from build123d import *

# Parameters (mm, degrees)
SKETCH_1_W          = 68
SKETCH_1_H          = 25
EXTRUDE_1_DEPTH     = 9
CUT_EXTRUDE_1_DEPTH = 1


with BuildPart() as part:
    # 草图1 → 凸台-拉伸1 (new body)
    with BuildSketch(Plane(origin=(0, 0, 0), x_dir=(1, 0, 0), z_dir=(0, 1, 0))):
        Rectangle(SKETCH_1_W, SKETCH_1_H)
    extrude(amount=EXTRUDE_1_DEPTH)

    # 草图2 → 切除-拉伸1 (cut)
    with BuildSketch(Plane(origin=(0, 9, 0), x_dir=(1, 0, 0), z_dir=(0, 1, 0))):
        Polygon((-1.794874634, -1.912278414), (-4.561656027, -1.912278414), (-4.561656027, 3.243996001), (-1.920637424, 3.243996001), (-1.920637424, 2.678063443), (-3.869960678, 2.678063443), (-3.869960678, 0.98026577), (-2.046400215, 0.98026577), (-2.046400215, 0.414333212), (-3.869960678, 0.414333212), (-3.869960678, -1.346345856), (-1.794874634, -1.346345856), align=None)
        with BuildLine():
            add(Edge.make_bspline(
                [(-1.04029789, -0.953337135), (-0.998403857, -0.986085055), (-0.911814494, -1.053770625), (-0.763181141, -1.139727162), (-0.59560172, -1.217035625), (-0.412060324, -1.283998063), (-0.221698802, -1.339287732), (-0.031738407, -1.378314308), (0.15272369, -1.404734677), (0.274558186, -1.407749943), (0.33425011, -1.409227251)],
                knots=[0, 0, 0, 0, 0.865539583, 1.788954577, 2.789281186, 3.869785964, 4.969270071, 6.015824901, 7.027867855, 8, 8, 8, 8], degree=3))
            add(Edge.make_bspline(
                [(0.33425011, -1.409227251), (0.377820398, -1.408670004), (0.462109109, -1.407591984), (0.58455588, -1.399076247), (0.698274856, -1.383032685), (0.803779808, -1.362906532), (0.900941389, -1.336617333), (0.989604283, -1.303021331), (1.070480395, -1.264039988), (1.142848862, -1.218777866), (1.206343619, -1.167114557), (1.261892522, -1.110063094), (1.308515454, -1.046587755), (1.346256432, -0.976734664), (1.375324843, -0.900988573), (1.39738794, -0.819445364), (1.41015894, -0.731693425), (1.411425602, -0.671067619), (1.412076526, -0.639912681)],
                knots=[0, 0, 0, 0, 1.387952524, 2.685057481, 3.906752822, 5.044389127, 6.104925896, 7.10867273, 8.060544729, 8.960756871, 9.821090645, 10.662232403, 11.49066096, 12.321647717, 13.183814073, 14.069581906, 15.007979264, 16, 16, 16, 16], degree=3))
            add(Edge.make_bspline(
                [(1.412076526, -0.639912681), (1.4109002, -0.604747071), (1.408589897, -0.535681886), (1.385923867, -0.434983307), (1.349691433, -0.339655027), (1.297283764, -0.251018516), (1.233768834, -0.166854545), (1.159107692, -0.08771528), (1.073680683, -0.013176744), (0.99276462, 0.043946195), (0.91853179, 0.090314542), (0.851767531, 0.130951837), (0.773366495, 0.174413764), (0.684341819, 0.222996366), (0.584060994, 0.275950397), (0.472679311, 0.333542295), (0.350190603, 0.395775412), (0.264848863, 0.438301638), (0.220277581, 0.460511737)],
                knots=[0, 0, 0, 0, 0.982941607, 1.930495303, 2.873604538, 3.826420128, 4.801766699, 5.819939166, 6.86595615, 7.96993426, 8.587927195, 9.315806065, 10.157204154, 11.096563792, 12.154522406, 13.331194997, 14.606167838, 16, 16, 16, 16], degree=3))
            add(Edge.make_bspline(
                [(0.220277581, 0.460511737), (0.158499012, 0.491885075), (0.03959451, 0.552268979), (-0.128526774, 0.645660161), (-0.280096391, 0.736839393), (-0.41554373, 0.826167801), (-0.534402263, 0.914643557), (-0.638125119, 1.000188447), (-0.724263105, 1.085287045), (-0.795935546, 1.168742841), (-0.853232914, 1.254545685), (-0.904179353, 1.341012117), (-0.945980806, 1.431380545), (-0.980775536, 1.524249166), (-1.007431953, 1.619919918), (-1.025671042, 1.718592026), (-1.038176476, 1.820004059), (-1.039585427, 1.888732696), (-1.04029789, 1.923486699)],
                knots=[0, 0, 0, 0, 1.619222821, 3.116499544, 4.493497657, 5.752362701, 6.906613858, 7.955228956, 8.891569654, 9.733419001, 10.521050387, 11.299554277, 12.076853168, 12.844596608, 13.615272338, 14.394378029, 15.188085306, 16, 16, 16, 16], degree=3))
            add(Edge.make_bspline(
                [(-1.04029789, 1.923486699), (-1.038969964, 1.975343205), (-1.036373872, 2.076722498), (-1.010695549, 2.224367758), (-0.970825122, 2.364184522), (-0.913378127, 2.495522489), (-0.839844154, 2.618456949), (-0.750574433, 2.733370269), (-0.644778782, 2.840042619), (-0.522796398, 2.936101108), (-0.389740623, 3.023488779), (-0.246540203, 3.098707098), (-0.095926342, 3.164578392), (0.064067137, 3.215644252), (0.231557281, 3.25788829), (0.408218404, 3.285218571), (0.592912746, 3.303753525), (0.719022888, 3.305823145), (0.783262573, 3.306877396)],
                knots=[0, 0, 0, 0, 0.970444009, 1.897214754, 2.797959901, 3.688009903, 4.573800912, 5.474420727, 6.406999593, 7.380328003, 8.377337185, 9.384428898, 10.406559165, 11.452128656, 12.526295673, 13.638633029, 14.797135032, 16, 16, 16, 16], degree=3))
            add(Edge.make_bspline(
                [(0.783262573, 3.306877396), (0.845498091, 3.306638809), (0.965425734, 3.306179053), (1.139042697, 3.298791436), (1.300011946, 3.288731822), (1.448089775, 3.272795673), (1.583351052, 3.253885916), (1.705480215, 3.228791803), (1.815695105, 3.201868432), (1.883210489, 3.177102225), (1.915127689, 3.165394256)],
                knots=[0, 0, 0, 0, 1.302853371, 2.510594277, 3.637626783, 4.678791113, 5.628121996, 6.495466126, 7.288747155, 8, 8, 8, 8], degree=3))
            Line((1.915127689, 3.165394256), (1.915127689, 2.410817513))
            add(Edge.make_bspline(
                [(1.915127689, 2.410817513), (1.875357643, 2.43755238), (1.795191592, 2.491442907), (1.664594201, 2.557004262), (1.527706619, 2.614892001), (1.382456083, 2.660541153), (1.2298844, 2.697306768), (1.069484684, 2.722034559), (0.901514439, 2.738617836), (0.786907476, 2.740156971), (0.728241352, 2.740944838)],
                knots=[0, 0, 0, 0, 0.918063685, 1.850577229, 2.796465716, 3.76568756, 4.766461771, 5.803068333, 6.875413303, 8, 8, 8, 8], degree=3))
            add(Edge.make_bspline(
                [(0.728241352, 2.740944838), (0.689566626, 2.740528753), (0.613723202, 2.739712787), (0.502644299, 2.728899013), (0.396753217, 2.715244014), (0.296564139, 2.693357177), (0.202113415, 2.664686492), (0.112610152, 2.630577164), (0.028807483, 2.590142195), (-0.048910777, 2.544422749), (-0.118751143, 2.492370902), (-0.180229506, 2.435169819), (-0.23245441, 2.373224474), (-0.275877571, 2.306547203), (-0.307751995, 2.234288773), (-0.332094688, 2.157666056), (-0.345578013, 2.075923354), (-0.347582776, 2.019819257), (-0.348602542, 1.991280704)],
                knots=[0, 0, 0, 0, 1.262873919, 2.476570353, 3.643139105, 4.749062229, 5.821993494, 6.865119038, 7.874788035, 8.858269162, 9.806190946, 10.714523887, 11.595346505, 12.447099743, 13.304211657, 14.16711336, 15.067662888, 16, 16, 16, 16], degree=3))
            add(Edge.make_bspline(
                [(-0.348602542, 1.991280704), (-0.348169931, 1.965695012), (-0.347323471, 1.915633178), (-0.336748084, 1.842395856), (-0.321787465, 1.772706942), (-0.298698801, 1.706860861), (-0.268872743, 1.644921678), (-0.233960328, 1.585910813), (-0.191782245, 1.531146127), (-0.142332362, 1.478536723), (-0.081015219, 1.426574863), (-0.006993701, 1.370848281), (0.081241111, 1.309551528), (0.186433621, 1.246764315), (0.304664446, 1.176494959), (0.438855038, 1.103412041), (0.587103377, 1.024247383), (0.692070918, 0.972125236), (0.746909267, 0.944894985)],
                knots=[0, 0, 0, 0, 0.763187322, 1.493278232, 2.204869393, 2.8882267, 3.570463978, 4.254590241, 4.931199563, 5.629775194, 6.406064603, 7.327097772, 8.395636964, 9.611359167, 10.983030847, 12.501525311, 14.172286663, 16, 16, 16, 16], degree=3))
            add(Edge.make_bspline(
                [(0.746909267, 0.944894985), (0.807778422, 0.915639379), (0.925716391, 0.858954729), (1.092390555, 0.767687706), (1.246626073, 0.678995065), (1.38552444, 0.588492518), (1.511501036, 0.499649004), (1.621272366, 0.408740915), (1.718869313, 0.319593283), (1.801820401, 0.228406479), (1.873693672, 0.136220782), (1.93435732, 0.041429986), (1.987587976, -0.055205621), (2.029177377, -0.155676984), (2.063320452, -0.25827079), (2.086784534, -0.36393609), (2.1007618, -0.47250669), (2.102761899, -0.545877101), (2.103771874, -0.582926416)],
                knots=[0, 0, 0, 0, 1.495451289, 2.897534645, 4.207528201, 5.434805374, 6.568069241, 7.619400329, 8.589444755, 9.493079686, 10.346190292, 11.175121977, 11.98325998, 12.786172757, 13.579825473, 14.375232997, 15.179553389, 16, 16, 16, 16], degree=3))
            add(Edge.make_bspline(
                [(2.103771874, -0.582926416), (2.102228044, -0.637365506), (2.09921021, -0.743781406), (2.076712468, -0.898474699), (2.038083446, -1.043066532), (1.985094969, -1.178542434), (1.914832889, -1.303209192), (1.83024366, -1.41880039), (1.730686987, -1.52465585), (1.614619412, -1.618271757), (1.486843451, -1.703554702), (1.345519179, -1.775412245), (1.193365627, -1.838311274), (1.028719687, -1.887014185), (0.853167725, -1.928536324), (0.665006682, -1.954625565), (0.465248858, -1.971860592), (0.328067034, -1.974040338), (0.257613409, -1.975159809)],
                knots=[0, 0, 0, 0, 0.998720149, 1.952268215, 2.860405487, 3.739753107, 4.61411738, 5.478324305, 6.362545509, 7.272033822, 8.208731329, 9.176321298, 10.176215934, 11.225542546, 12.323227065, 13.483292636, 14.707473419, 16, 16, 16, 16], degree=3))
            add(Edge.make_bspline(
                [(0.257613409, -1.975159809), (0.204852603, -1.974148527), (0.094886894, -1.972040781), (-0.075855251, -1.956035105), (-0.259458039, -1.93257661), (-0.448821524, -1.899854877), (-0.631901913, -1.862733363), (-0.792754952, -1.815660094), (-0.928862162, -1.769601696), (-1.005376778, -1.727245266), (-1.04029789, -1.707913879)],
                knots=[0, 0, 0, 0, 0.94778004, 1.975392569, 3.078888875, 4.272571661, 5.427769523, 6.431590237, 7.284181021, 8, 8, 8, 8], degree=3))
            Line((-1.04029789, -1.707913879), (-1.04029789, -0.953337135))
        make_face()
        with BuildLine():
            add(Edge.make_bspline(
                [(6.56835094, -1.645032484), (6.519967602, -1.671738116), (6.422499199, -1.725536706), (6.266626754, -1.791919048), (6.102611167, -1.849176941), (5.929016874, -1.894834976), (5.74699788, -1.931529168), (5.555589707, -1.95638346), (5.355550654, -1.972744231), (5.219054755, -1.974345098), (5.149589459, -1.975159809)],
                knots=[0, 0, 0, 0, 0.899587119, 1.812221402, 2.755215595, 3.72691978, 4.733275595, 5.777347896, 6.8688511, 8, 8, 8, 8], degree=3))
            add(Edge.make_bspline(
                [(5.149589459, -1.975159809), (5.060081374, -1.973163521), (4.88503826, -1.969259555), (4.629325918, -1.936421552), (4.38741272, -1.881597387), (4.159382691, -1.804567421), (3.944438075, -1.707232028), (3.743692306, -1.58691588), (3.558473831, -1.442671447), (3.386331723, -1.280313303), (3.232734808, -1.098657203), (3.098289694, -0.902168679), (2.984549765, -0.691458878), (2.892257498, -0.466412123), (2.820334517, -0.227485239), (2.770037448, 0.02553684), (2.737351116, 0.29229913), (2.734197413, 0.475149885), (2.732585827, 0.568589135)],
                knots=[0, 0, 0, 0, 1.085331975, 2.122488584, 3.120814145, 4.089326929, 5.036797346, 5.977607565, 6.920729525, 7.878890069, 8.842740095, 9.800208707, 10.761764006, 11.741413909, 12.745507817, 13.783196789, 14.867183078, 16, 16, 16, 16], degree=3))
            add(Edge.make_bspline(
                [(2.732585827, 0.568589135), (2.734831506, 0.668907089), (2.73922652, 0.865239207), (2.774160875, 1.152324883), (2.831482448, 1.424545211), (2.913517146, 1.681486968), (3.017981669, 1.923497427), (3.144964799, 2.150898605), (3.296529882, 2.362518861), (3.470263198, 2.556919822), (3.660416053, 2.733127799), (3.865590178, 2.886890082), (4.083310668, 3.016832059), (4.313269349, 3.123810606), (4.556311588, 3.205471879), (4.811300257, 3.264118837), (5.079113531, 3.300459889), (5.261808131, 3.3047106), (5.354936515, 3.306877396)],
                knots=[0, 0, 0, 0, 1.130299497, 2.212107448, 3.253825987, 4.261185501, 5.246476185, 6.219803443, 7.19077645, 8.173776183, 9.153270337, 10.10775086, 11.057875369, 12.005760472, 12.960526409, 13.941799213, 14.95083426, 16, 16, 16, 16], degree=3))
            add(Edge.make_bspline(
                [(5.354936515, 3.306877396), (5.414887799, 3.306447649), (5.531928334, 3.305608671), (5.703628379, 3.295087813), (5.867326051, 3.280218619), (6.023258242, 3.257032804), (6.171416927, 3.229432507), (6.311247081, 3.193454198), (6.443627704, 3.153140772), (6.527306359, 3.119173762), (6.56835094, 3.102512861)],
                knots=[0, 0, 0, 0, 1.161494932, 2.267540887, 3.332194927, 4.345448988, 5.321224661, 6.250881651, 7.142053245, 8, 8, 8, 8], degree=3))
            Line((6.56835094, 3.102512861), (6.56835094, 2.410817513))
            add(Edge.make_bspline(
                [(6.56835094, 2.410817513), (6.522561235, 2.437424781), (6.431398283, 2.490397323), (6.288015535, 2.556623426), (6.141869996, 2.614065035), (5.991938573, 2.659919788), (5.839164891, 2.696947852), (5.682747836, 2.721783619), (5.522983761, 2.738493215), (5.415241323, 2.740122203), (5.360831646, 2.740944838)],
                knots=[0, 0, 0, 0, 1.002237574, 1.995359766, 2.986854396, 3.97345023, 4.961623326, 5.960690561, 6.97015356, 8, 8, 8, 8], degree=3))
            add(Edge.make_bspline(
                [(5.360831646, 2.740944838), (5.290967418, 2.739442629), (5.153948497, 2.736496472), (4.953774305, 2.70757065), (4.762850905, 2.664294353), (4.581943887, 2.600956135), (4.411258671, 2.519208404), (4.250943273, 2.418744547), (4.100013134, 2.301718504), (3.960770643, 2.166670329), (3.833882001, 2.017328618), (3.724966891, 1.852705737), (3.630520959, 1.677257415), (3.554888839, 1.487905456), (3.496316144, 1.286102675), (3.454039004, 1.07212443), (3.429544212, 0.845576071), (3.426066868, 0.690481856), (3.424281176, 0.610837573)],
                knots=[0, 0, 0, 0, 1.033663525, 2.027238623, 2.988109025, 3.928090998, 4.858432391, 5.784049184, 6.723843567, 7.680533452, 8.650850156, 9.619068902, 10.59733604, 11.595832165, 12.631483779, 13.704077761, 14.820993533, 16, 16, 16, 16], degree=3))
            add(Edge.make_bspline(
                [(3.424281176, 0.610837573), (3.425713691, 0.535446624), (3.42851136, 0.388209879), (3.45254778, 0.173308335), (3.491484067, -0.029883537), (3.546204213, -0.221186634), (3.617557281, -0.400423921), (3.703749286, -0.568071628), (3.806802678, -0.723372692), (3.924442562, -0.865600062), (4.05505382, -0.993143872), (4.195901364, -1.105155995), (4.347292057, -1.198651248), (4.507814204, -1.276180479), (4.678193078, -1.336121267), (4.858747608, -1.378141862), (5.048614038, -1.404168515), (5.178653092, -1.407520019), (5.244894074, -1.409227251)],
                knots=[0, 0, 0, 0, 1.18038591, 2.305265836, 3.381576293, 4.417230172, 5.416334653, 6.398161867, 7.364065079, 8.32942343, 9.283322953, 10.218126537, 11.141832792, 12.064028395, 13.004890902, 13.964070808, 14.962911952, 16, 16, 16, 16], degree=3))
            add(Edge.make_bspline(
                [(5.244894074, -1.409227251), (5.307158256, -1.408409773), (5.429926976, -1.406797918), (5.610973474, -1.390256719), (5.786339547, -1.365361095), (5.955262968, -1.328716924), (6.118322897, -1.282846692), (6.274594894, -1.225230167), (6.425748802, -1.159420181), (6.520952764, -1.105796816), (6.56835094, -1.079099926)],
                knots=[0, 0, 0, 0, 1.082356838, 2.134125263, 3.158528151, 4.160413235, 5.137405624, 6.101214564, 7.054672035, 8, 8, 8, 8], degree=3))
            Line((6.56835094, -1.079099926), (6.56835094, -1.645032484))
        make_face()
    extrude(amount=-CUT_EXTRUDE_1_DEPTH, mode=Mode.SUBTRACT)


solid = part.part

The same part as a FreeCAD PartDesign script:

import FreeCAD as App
import Part
import Sketcher

V = App.Vector

doc = App.newDocument("Part")
body = doc.addObject("PartDesign::Body", "Body")

# Sketch on XZ plane
sketch1 = body.newObject("Sketcher::SketchObject", "Sketch")
sketch1.AttachmentSupport = (doc.getObject("XZ_Plane"), [""])
sketch1.MapMode = "FlatFace"
sketch1.addGeometry([
    Part.LineSegment(V(-34, -12, 0), V(-34, 12, 0)),
    Part.LineSegment(V(-34, 12, 0), V(34, 12, 0)),
    Part.LineSegment(V(34, 12, 0), V(34, -12, 0)),
    Part.LineSegment(V(34, -12, 0), V(-34, -12, 0)),
], False)
sketch1.addConstraint([
    Sketcher.Constraint("Coincident", 0, 2, 1, 1),
    Sketcher.Constraint("Coincident", 1, 2, 2, 1),
    Sketcher.Constraint("Coincident", 2, 2, 3, 1),
    Sketcher.Constraint("Coincident", 3, 2, 0, 1),
    Sketcher.Constraint("Vertical", 0),
    Sketcher.Constraint("Horizontal", 1),
    Sketcher.Constraint("Vertical", 2),
    Sketcher.Constraint("Horizontal", 3),
    Sketcher.Constraint("Symmetric", 0, 2, 2, 2, -1, 1),
    Sketcher.Constraint("DistanceX", 1, 1, 1, 2, 68.0),
    Sketcher.Constraint("DistanceY", 0, 1, 0, 2, 25.0),
])
pad1 = body.newObject("PartDesign::Pad", "Pad")
pad1.Profile = sketch1
pad1.Length = 9
pad1.Reversed = True

# Sketch on XZ plane
sketch2 = body.newObject("Sketcher::SketchObject", "Sketch001")
sketch2.AttachmentSupport = (doc.getObject("XZ_Plane"), [""])
sketch2.MapMode = "FlatFace"
sketch2.AttachmentOffset = App.Placement(V(0, 0, -9), App.Rotation())
sketch2.addGeometry([
    Part.LineSegment(V(-4.561656, 1.912278, 0), V(-1.794875, 1.912278, 0)),  # 0
    Part.LineSegment(V(-1.794875, 1.912278, 0), V(-1.794875, 1.346346, 0)),  # 1
    Part.LineSegment(V(-1.794875, 1.346346, 0), V(-3.869961, 1.346346, 0)),  # 2
    Part.LineSegment(V(-3.869961, 1.346346, 0), V(-3.869961, -0.414333, 0)),  # 3
    Part.LineSegment(V(-3.869961, -0.414333, 0), V(-2.0464, -0.414333, 0)),  # 4
    Part.LineSegment(V(-2.0464, -0.414333, 0), V(-2.0464, -0.980266, 0)),  # 5
    Part.LineSegment(V(-2.0464, -0.980266, 0), V(-3.869961, -0.980266, 0)),  # 6
    Part.LineSegment(V(-3.869961, -0.980266, 0), V(-3.869961, -2.678063, 0)),  # 7
    Part.LineSegment(V(-3.869961, -2.678063, 0), V(-1.920637, -2.678063, 0)),  # 8
    Part.LineSegment(V(-1.920637, -2.678063, 0), V(-1.920637, -3.243996, 0)),  # 9
    Part.LineSegment(V(-1.920637, -3.243996, 0), V(-4.561656, -3.243996, 0)),  # 10
    Part.LineSegment(V(-4.561656, -3.243996, 0), V(-4.561656, 1.912278, 0)),  # 11
    Part.BSplineCurve([V(-1.040298, 0.953337, 0), V(-0.998404, 0.986085, 0), V(-0.911814, 1.053771, 0), V(-0.763181, 1.139727, 0), V(-0.595602, 1.217036, 0), V(-0.41206, 1.283998, 0), V(-0.221699, 1.339288, 0), V(-0.031738, 1.378314, 0), V(0.152724, 1.404735, 0), V(0.274558, 1.40775, 0), V(0.33425, 1.409227, 0)], [4, 1, 1, 1, 1, 1, 1, 1, 4], [0, 0.865539583, 1.788954577, 2.789281186, 3.869785964, 4.969270071, 6.015824901, 7.027867855, 8], False, 3, [1, 1, 1, 1, 1, 1, 1, 1, 1, 1, 1], False),  # 12
    Part.LineSegment(V(-1.040298, 0.953337, 0), V(-1.040298, 1.707914, 0)),  # 13
    Part.BSplineCurve([V(0.257613, 1.97516, 0), V(0.204853, 1.974149, 0), V(0.094887, 1.972041, 0), V(-0.075855, 1.956035, 0), V(-0.259458, 1.932577, 0), V(-0.448822, 1.899855, 0), V(-0.631902, 1.862733, 0), V(-0.792755, 1.81566, 0), V(-0.928862, 1.769602, 0), V(-1.005377, 1.727245, 0), V(-1.040298, 1.707914, 0)], [4, 1, 1, 1, 1, 1, 1, 1, 4], [0, 0.94778004, 1.975392569, 3.078888875, 4.272571661, 5.427769523, 6.431590237, 7.284181021, 8], False, 3, [1, 1, 1, 1, 1, 1, 1, 1, 1, 1, 1], False),  # 14
    Part.BSplineCurve([V(2.103772, 0.582926, 0), V(2.102228, 0.637366, 0), V(2.09921, 0.743781, 0), V(2.076712, 0.898475, 0), V(2.038083, 1.043067, 0), V(1.985095, 1.178542, 0), V(1.914833, 1.303209, 0), V(1.830244, 1.4188, 0), V(1.730687, 1.524656, 0), V(1.614619, 1.618272, 0), V(1.486843, 1.703555, 0), V(1.345519, 1.775412, 0), V(1.193366, 1.838311, 0), V(1.02872, 1.887014, 0), V(0.853168, 1.928536, 0), V(0.665007, 1.954626, 0), V(0.465249, 1.971861, 0), V(0.328067, 1.97404, 0), V(0.257613, 1.97516, 0)], [4, 1, 1, 1, 1, 1, 1, 1, 1, 1, 1, 1, 1, 1, 1, 1, 4], [0, 0.998720149, 1.952268215, 2.860405487, 3.739753107, 4.61411738, 5.478324305, 6.362545509, 7.272033822, 8.208731329, 9.176321298, 10.176215934, 11.225542546, 12.323227065, 13.483292636, 14.707473419, 16], False, 3, [1, 1, 1, 1, 1, 1, 1, 1, 1, 1, 1, 1, 1, 1, 1, 1, 1, 1, 1], False),  # 15
    Part.BSplineCurve([V(0.746909, -0.944895, 0), V(0.807778, -0.915639, 0), V(0.925716, -0.858955, 0), V(1.092391, -0.767688, 0), V(1.246626, -0.678995, 0), V(1.385524, -0.588493, 0), V(1.511501, -0.499649, 0), V(1.621272, -0.408741, 0), V(1.718869, -0.319593, 0), V(1.80182, -0.228406, 0), V(1.873694, -0.136221, 0), V(1.934357, -0.04143, 0), V(1.987588, 0.055206, 0), V(2.029177, 0.155677, 0), V(2.06332, 0.258271, 0), V(2.086785, 0.363936, 0), V(2.100762, 0.472507, 0), V(2.102762, 0.545877, 0), V(2.103772, 0.582926, 0)], [4, 1, 1, 1, 1, 1, 1, 1, 1, 1, 1, 1, 1, 1, 1, 1, 4], [0, 1.495451289, 2.897534645, 4.207528201, 5.434805374, 6.568069241, 7.619400329, 8.589444755, 9.493079686, 10.346190292, 11.175121977, 11.98325998, 12.786172757, 13.579825473, 14.375232997, 15.179553389, 16], False, 3, [1, 1, 1, 1, 1, 1, 1, 1, 1, 1, 1, 1, 1, 1, 1, 1, 1, 1, 1], False),  # 16
    Part.BSplineCurve([V(-0.348603, -1.991281, 0), V(-0.34817, -1.965695, 0), V(-0.347323, -1.915633, 0), V(-0.336748, -1.842396, 0), V(-0.321787, -1.772707, 0), V(-0.298699, -1.706861, 0), V(-0.268873, -1.644922, 0), V(-0.23396, -1.585911, 0), V(-0.191782, -1.531146, 0), V(-0.142332, -1.478537, 0), V(-0.081015, -1.426575, 0), V(-0.006994, -1.370848, 0), V(0.081241, -1.309552, 0), V(0.186434, -1.246764, 0), V(0.304664, -1.176495, 0), V(0.438855, -1.103412, 0), V(0.587103, -1.024247, 0), V(0.692071, -0.972125, 0), V(0.746909, -0.944895, 0)], [4, 1, 1, 1, 1, 1, 1, 1, 1, 1, 1, 1, 1, 1, 1, 1, 4], [0, 0.763187322, 1.493278232, 2.204869393, 2.8882267, 3.570463978, 4.254590241, 4.931199563, 5.629775194, 6.406064603, 7.327097772, 8.395636964, 9.611359167, 10.983030847, 12.501525311, 14.172286663, 16], False, 3, [1, 1, 1, 1, 1, 1, 1, 1, 1, 1, 1, 1, 1, 1, 1, 1, 1, 1, 1], False),  # 17
    Part.BSplineCurve([V(0.728241, -2.740945, 0), V(0.689567, -2.740529, 0), V(0.613723, -2.739713, 0), V(0.502644, -2.728899, 0), V(0.396753, -2.715244, 0), V(0.296564, -2.693357, 0), V(0.202113, -2.664686, 0), V(0.11261, -2.630577, 0), V(0.028807, -2.590142, 0), V(-0.048911, -2.544423, 0), V(-0.118751, -2.492371, 0), V(-0.18023, -2.43517, 0), V(-0.232454, -2.373224, 0), V(-0.275878, -2.306547, 0), V(-0.307752, -2.234289, 0), V(-0.332095, -2.157666, 0), V(-0.345578, -2.075923, 0), V(-0.347583, -2.019819, 0), V(-0.348603, -1.991281, 0)], [4, 1, 1, 1, 1, 1, 1, 1, 1, 1, 1, 1, 1, 1, 1, 1, 4], [0, 1.262873919, 2.476570353, 3.643139105, 4.749062229, 5.821993494, 6.865119038, 7.874788035, 8.858269162, 9.806190946, 10.714523887, 11.595346505, 12.447099743, 13.304211657, 14.16711336, 15.067662888, 16], False, 3, [1, 1, 1, 1, 1, 1, 1, 1, 1, 1, 1, 1, 1, 1, 1, 1, 1, 1, 1], False),  # 18
    Part.BSplineCurve([V(1.915128, -2.410818, 0), V(1.875358, -2.437552, 0), V(1.795192, -2.491443, 0), V(1.664594, -2.557004, 0), V(1.527707, -2.614892, 0), V(1.382456, -2.660541, 0), V(1.229884, -2.697307, 0), V(1.069485, -2.722035, 0), V(0.901514, -2.738618, 0), V(0.786907, -2.740157, 0), V(0.728241, -2.740945, 0)], [4, 1, 1, 1, 1, 1, 1, 1, 4], [0, 0.918063685, 1.850577229, 2.796465716, 3.76568756, 4.766461771, 5.803068333, 6.875413303, 8], False, 3, [1, 1, 1, 1, 1, 1, 1, 1, 1, 1, 1], False),  # 19
    Part.LineSegment(V(1.915128, -2.410818, 0), V(1.915128, -3.165394, 0)),  # 20
    Part.BSplineCurve([V(0.783263, -3.306877, 0), V(0.845498, -3.306639, 0), V(0.965426, -3.306179, 0), V(1.139043, -3.298791, 0), V(1.300012, -3.288732, 0), V(1.44809, -3.272796, 0), V(1.583351, -3.253886, 0), V(1.70548, -3.228792, 0), V(1.815695, -3.201868, 0), V(1.88321, -3.177102, 0), V(1.915128, -3.165394, 0)], [4, 1, 1, 1, 1, 1, 1, 1, 4], [0, 1.302853371, 2.510594277, 3.637626783, 4.678791113, 5.628121996, 6.495466126, 7.288747155, 8], False, 3, [1, 1, 1, 1, 1, 1, 1, 1, 1, 1, 1], False),  # 21
    Part.BSplineCurve([V(-1.040298, -1.923487, 0), V(-1.03897, -1.975343, 0), V(-1.036374, -2.076722, 0), V(-1.010696, -2.224368, 0), V(-0.970825, -2.364185, 0), V(-0.913378, -2.495522, 0), V(-0.839844, -2.618457, 0), V(-0.750574, -2.73337, 0), V(-0.644779, -2.840043, 0), V(-0.522796, -2.936101, 0), V(-0.389741, -3.023489, 0), V(-0.24654, -3.098707, 0), V(-0.095926, -3.164578, 0), V(0.064067, -3.215644, 0), V(0.231557, -3.257888, 0), V(0.408218, -3.285219, 0), V(0.592913, -3.303754, 0), V(0.719023, -3.305823, 0), V(0.783263, -3.306877, 0)], [4, 1, 1, 1, 1, 1, 1, 1, 1, 1, 1, 1, 1, 1, 1, 1, 4], [0, 0.970444009, 1.897214754, 2.797959901, 3.688009903, 4.573800912, 5.474420727, 6.406999593, 7.380328003, 8.377337185, 9.384428898, 10.406559165, 11.452128656, 12.526295673, 13.638633029, 14.797135032, 16], False, 3, [1, 1, 1, 1, 1, 1, 1, 1, 1, 1, 1, 1, 1, 1, 1, 1, 1, 1, 1], False),  # 22
    Part.BSplineCurve([V(0.220278, -0.460512, 0), V(0.158499, -0.491885, 0), V(0.039595, -0.552269, 0), V(-0.128527, -0.64566, 0), V(-0.280096, -0.736839, 0), V(-0.415544, -0.826168, 0), V(-0.534402, -0.914644, 0), V(-0.638125, -1.000188, 0), V(-0.724263, -1.085287, 0), V(-0.795936, -1.168743, 0), V(-0.853233, -1.254546, 0), V(-0.904179, -1.341012, 0), V(-0.945981, -1.431381, 0), V(-0.980776, -1.524249, 0), V(-1.007432, -1.61992, 0), V(-1.025671, -1.718592, 0), V(-1.038176, -1.820004, 0), V(-1.039585, -1.888733, 0), V(-1.040298, -1.923487, 0)], [4, 1, 1, 1, 1, 1, 1, 1, 1, 1, 1, 1, 1, 1, 1, 1, 4], [0, 1.619222821, 3.116499544, 4.493497657, 5.752362701, 6.906613858, 7.955228956, 8.891569654, 9.733419001, 10.521050387, 11.299554277, 12.076853168, 12.844596608, 13.615272338, 14.394378029, 15.188085306, 16], False, 3, [1, 1, 1, 1, 1, 1, 1, 1, 1, 1, 1, 1, 1, 1, 1, 1, 1, 1, 1], False),  # 23
    Part.BSplineCurve([V(1.412077, 0.639913, 0), V(1.4109, 0.604747, 0), V(1.40859, 0.535682, 0), V(1.385924, 0.434983, 0), V(1.349691, 0.339655, 0), V(1.297284, 0.251019, 0), V(1.233769, 0.166855, 0), V(1.159108, 0.087715, 0), V(1.073681, 0.013177, 0), V(0.992765, -0.043946, 0), V(0.918532, -0.090315, 0), V(0.851768, -0.130952, 0), V(0.773366, -0.174414, 0), V(0.684342, -0.222996, 0), V(0.584061, -0.27595, 0), V(0.472679, -0.333542, 0), V(0.350191, -0.395775, 0), V(0.264849, -0.438302, 0), V(0.220278, -0.460512, 0)], [4, 1, 1, 1, 1, 1, 1, 1, 1, 1, 1, 1, 1, 1, 1, 1, 4], [0, 0.982941607, 1.930495303, 2.873604538, 3.826420128, 4.801766699, 5.819939166, 6.86595615, 7.96993426, 8.587927195, 9.315806065, 10.157204154, 11.096563792, 12.154522406, 13.331194997, 14.606167838, 16], False, 3, [1, 1, 1, 1, 1, 1, 1, 1, 1, 1, 1, 1, 1, 1, 1, 1, 1, 1, 1], False),  # 24
    Part.BSplineCurve([V(0.33425, 1.409227, 0), V(0.37782, 1.40867, 0), V(0.462109, 1.407592, 0), V(0.584556, 1.399076, 0), V(0.698275, 1.383033, 0), V(0.80378, 1.362907, 0), V(0.900941, 1.336617, 0), V(0.989604, 1.303021, 0), V(1.07048, 1.26404, 0), V(1.142849, 1.218778, 0), V(1.206344, 1.167115, 0), V(1.261893, 1.110063, 0), V(1.308515, 1.046588, 0), V(1.346256, 0.976735, 0), V(1.375325, 0.900989, 0), V(1.397388, 0.819445, 0), V(1.410159, 0.731693, 0), V(1.411426, 0.671068, 0), V(1.412077, 0.639913, 0)], [4, 1, 1, 1, 1, 1, 1, 1, 1, 1, 1, 1, 1, 1, 1, 1, 4], [0, 1.387952524, 2.685057481, 3.906752822, 5.044389127, 6.104925896, 7.10867273, 8.060544729, 8.960756871, 9.821090645, 10.662232403, 11.49066096, 12.321647717, 13.183814073, 14.069581906, 15.007979264, 16], False, 3, [1, 1, 1, 1, 1, 1, 1, 1, 1, 1, 1, 1, 1, 1, 1, 1, 1, 1, 1], False),  # 25
    Part.BSplineCurve([V(6.568351, 1.645032, 0), V(6.519968, 1.671738, 0), V(6.422499, 1.725537, 0), V(6.266627, 1.791919, 0), V(6.102611, 1.849177, 0), V(5.929017, 1.894835, 0), V(5.746998, 1.931529, 0), V(5.55559, 1.956383, 0), V(5.355551, 1.972744, 0), V(5.219055, 1.974345, 0), V(5.149589, 1.97516, 0)], [4, 1, 1, 1, 1, 1, 1, 1, 4], [0, 0.899587119, 1.812221402, 2.755215595, 3.72691978, 4.733275595, 5.777347896, 6.8688511, 8], False, 3, [1, 1, 1, 1, 1, 1, 1, 1, 1, 1, 1], False),  # 26
    Part.LineSegment(V(6.568351, 1.645032, 0), V(6.568351, 1.0791, 0)),  # 27
    Part.BSplineCurve([V(5.244894, 1.409227, 0), V(5.307158, 1.40841, 0), V(5.429927, 1.406798, 0), V(5.610973, 1.390257, 0), V(5.78634, 1.365361, 0), V(5.955263, 1.328717, 0), V(6.118323, 1.282847, 0), V(6.274595, 1.22523, 0), V(6.425749, 1.15942, 0), V(6.520953, 1.105797, 0), V(6.568351, 1.0791, 0)], [4, 1, 1, 1, 1, 1, 1, 1, 4], [0, 1.082356838, 2.134125263, 3.158528151, 4.160413235, 5.137405624, 6.101214564, 7.054672035, 8], False, 3, [1, 1, 1, 1, 1, 1, 1, 1, 1, 1, 1], False),  # 28
    Part.BSplineCurve([V(3.424281, -0.610838, 0), V(3.425714, -0.535447, 0), V(3.428511, -0.38821, 0), V(3.452548, -0.173308, 0), V(3.491484, 0.029884, 0), V(3.546204, 0.221187, 0), V(3.617557, 0.400424, 0), V(3.703749, 0.568072, 0), V(3.806803, 0.723373, 0), V(3.924443, 0.8656, 0), V(4.055054, 0.993144, 0), V(4.195901, 1.105156, 0), V(4.347292, 1.198651, 0), V(4.507814, 1.27618, 0), V(4.678193, 1.336121, 0), V(4.858748, 1.378142, 0), V(5.048614, 1.404169, 0), V(5.178653, 1.40752, 0), V(5.244894, 1.409227, 0)], [4, 1, 1, 1, 1, 1, 1, 1, 1, 1, 1, 1, 1, 1, 1, 1, 4], [0, 1.18038591, 2.305265836, 3.381576293, 4.417230172, 5.416334653, 6.398161867, 7.364065079, 8.32942343, 9.283322953, 10.218126537, 11.141832792, 12.064028395, 13.004890902, 13.964070808, 14.962911952, 16], False, 3, [1, 1, 1, 1, 1, 1, 1, 1, 1, 1, 1, 1, 1, 1, 1, 1, 1, 1, 1], False),  # 29
    Part.BSplineCurve([V(5.360832, -2.740945, 0), V(5.290967, -2.739443, 0), V(5.153948, -2.736496, 0), V(4.953774, -2.707571, 0), V(4.762851, -2.664294, 0), V(4.581944, -2.600956, 0), V(4.411259, -2.519208, 0), V(4.250943, -2.418745, 0), V(4.100013, -2.301719, 0), V(3.960771, -2.16667, 0), V(3.833882, -2.017329, 0), V(3.724967, -1.852706, 0), V(3.630521, -1.677257, 0), V(3.554889, -1.487905, 0), V(3.496316, -1.286103, 0), V(3.454039, -1.072124, 0), V(3.429544, -0.845576, 0), V(3.426067, -0.690482, 0), V(3.424281, -0.610838, 0)], [4, 1, 1, 1, 1, 1, 1, 1, 1, 1, 1, 1, 1, 1, 1, 1, 4], [0, 1.033663525, 2.027238623, 2.988109025, 3.928090998, 4.858432391, 5.784049184, 6.723843567, 7.680533452, 8.650850156, 9.619068902, 10.59733604, 11.595832165, 12.631483779, 13.704077761, 14.820993533, 16], False, 3, [1, 1, 1, 1, 1, 1, 1, 1, 1, 1, 1, 1, 1, 1, 1, 1, 1, 1, 1], False),  # 30
    Part.BSplineCurve([V(6.568351, -2.410818, 0), V(6.522561, -2.437425, 0), V(6.431398, -2.490397, 0), V(6.288016, -2.556623, 0), V(6.14187, -2.614065, 0), V(5.991939, -2.65992, 0), V(5.839165, -2.696948, 0), V(5.682748, -2.721784, 0), V(5.522984, -2.738493, 0), V(5.415241, -2.740122, 0), V(5.360832, -2.740945, 0)], [4, 1, 1, 1, 1, 1, 1, 1, 4], [0, 1.002237574, 1.995359766, 2.986854396, 3.97345023, 4.961623326, 5.960690561, 6.97015356, 8], False, 3, [1, 1, 1, 1, 1, 1, 1, 1, 1, 1, 1], False),  # 31
    Part.LineSegment(V(6.568351, -2.410818, 0), V(6.568351, -3.102513, 0)),  # 32
    Part.BSplineCurve([V(5.354937, -3.306877, 0), V(5.414888, -3.306448, 0), V(5.531928, -3.305609, 0), V(5.703628, -3.295088, 0), V(5.867326, -3.280219, 0), V(6.023258, -3.257033, 0), V(6.171417, -3.229433, 0), V(6.311247, -3.193454, 0), V(6.443628, -3.153141, 0), V(6.527306, -3.119174, 0), V(6.568351, -3.102513, 0)], [4, 1, 1, 1, 1, 1, 1, 1, 4], [0, 1.161494932, 2.267540887, 3.332194927, 4.345448988, 5.321224661, 6.250881651, 7.142053245, 8], False, 3, [1, 1, 1, 1, 1, 1, 1, 1, 1, 1, 1], False),  # 33
    Part.BSplineCurve([V(2.732586, -0.568589, 0), V(2.734832, -0.668907, 0), V(2.739227, -0.865239, 0), V(2.774161, -1.152325, 0), V(2.831482, -1.424545, 0), V(2.913517, -1.681487, 0), V(3.017982, -1.923497, 0), V(3.144965, -2.150899, 0), V(3.29653, -2.362519, 0), V(3.470263, -2.55692, 0), V(3.660416, -2.733128, 0), V(3.86559, -2.88689, 0), V(4.083311, -3.016832, 0), V(4.313269, -3.123811, 0), V(4.556312, -3.205472, 0), V(4.8113, -3.264119, 0), V(5.079114, -3.30046, 0), V(5.261808, -3.304711, 0), V(5.354937, -3.306877, 0)], [4, 1, 1, 1, 1, 1, 1, 1, 1, 1, 1, 1, 1, 1, 1, 1, 4], [0, 1.130299497, 2.212107448, 3.253825987, 4.261185501, 5.246476185, 6.219803443, 7.19077645, 8.173776183, 9.153270337, 10.10775086, 11.057875369, 12.005760472, 12.960526409, 13.941799213, 14.95083426, 16], False, 3, [1, 1, 1, 1, 1, 1, 1, 1, 1, 1, 1, 1, 1, 1, 1, 1, 1, 1, 1], False),  # 34
    Part.BSplineCurve([V(5.149589, 1.97516, 0), V(5.060081, 1.973164, 0), V(4.885038, 1.96926, 0), V(4.629326, 1.936422, 0), V(4.387413, 1.881597, 0), V(4.159383, 1.804567, 0), V(3.944438, 1.707232, 0), V(3.743692, 1.586916, 0), V(3.558474, 1.442671, 0), V(3.386332, 1.280313, 0), V(3.232735, 1.098657, 0), V(3.09829, 0.902169, 0), V(2.98455, 0.691459, 0), V(2.892257, 0.466412, 0), V(2.820335, 0.227485, 0), V(2.770037, -0.025537, 0), V(2.737351, -0.292299, 0), V(2.734197, -0.47515, 0), V(2.732586, -0.568589, 0)], [4, 1, 1, 1, 1, 1, 1, 1, 1, 1, 1, 1, 1, 1, 1, 1, 4], [0, 1.085331975, 2.122488584, 3.120814145, 4.089326929, 5.036797346, 5.977607565, 6.920729525, 7.878890069, 8.842740095, 9.800208707, 10.761764006, 11.741413909, 12.745507817, 13.783196789, 14.867183078, 16], False, 3, [1, 1, 1, 1, 1, 1, 1, 1, 1, 1, 1, 1, 1, 1, 1, 1, 1, 1, 1], False),  # 35
], False)
sketch2.addConstraint([
    Sketcher.Constraint("Block", 12),
    Sketcher.Constraint("Block", 14),
    Sketcher.Constraint("Block", 15),
    Sketcher.Constraint("Block", 16),
    Sketcher.Constraint("Block", 17),
    Sketcher.Constraint("Block", 18),
    Sketcher.Constraint("Block", 19),
    Sketcher.Constraint("Block", 21),
    Sketcher.Constraint("Block", 22),
    Sketcher.Constraint("Block", 23),
    Sketcher.Constraint("Block", 24),
    Sketcher.Constraint("Block", 25),
    Sketcher.Constraint("Block", 26),
    Sketcher.Constraint("Block", 28),
    Sketcher.Constraint("Block", 29),
    Sketcher.Constraint("Block", 30),
    Sketcher.Constraint("Block", 31),
    Sketcher.Constraint("Block", 33),
    Sketcher.Constraint("Block", 34),
    Sketcher.Constraint("Block", 35),
    Sketcher.Constraint("Coincident", 0, 2, 1, 1),
    Sketcher.Constraint("Coincident", 1, 2, 2, 1),
    Sketcher.Constraint("Coincident", 2, 2, 3, 1),
    Sketcher.Constraint("Coincident", 3, 2, 4, 1),
    Sketcher.Constraint("Coincident", 4, 2, 5, 1),
    Sketcher.Constraint("Coincident", 5, 2, 6, 1),
    Sketcher.Constraint("Coincident", 6, 2, 7, 1),
    Sketcher.Constraint("Coincident", 7, 2, 8, 1),
    Sketcher.Constraint("Coincident", 8, 2, 9, 1),
    Sketcher.Constraint("Coincident", 9, 2, 10, 1),
    Sketcher.Constraint("Coincident", 10, 2, 11, 1),
    Sketcher.Constraint("Coincident", 11, 2, 0, 1),
    Sketcher.Constraint("Coincident", 12, 1, 13, 1),
    Sketcher.Constraint("Coincident", 13, 2, 14, 2),
    Sketcher.Constraint("Coincident", 19, 1, 20, 1),
    Sketcher.Constraint("Coincident", 20, 2, 21, 2),
    Sketcher.Constraint("Coincident", 26, 1, 27, 1),
    Sketcher.Constraint("Coincident", 27, 2, 28, 2),
    Sketcher.Constraint("Coincident", 31, 1, 32, 1),
    Sketcher.Constraint("Coincident", 32, 2, 33, 2),
    Sketcher.Constraint("Horizontal", 0),
    Sketcher.Constraint("Vertical", 1),
    Sketcher.Constraint("Horizontal", 2),
    Sketcher.Constraint("Vertical", 3),
    Sketcher.Constraint("Horizontal", 4),
    Sketcher.Constraint("Vertical", 5),
    Sketcher.Constraint("Horizontal", 6),
    Sketcher.Constraint("Vertical", 7),
    Sketcher.Constraint("Horizontal", 8),
    Sketcher.Constraint("Vertical", 9),
    Sketcher.Constraint("Horizontal", 10),
    Sketcher.Constraint("Vertical", 11),
    Sketcher.Constraint("Vertical", 3, 2, 6, 2),
    Sketcher.Constraint("Equal", 1, 5),
    Sketcher.Constraint("Equal", 5, 9),
    Sketcher.Constraint("Equal", 9, 27),
    Sketcher.Constraint("DistanceX", 0, 1, 0, 2, 2.766781),
    Sketcher.Constraint("DistanceX", 4, 1, 4, 2, 1.82356),
    Sketcher.Constraint("DistanceX", 10, 2, 10, 1, 2.641019),
    Sketcher.Constraint("DistanceY", 3, 2, 3, 1, 1.760679),
    Sketcher.Constraint("DistanceX", 4, 2, -1, 1, 2.0464),
    Sketcher.Constraint("DistanceY", 9, 2, 20, 2, 0.078602),
    Sketcher.Constraint("DistanceX", 2, 2, 2, 1, 2.075086),
    Sketcher.Constraint("DistanceY", 7, 2, 7, 1, 1.697798),
])
pocket1 = body.newObject("PartDesign::Pocket", "Pocket")
pocket1.Profile = sketch2
pocket1.Length = 1
pocket1.Reversed = True

doc.recompute()
